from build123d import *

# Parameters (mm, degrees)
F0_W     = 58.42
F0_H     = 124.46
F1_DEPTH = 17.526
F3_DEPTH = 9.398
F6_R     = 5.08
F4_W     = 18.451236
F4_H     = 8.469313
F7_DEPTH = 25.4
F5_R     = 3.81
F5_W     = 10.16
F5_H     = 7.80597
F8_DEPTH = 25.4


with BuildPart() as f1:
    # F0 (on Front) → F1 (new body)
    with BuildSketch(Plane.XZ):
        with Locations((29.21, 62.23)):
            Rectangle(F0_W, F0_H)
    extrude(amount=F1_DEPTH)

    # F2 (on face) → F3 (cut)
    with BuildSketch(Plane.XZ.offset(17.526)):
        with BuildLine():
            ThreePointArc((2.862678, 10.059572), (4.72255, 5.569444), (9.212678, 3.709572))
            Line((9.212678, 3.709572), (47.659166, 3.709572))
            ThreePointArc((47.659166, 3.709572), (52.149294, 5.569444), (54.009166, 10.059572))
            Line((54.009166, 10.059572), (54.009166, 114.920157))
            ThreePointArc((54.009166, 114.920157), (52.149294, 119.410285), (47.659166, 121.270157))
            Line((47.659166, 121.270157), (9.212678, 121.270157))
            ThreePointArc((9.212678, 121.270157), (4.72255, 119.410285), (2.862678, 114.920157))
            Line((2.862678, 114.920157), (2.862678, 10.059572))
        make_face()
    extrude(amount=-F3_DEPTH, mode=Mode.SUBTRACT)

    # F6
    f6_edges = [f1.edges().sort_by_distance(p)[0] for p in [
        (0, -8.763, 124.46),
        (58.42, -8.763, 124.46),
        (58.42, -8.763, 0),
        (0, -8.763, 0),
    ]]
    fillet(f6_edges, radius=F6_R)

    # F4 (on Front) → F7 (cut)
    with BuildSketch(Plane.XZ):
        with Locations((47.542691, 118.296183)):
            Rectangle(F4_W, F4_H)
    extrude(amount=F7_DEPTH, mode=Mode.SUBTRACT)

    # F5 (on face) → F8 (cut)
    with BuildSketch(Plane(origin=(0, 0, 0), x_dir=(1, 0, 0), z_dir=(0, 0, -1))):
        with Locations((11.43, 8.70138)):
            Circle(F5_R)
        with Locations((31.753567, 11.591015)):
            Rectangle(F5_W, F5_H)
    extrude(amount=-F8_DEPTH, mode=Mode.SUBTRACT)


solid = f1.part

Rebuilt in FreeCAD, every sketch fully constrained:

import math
import FreeCAD as App
import Part
import Sketcher

V = App.Vector
Q = App.Units.Quantity


def edges_at(feature, points):
    """Names of the edges that pass closest to the given points."""
    edges = feature.Shape.Edges
    near = lambda p: min(range(len(edges)), key=lambda i: edges[i].distToShape(Part.Vertex(*p))[0])
    return sorted({f"Edge{near(p) + 1}" for p in points})


def add_polygon(sketch, points):
    """Adds a closed chain of lines whose ends are joined by coincident constraints."""
    first, n = sketch.GeometryCount, len(points)
    for a, b in zip(points, points[1:] + points[:1]):
        sketch.addGeometry(Part.LineSegment(App.Vector(*a, 0), App.Vector(*b, 0)), False)
    for i in range(n):
        sketch.addConstraint(Sketcher.Constraint("Coincident", first + i, 2, first + (i + 1) % n, 1))

doc = App.newDocument("Part")
body = doc.addObject("PartDesign::Body", "Body")

sketch1 = doc.addObject("Sketcher::SketchObject", "Sketch")
body.addObject(sketch1)
sketch1.AttachmentSupport = (doc.XZ_Plane, [""])
sketch1.MapMode = "FlatFace"
add_polygon(sketch1, [(0, 124.46), (0, 0), (58.42, 0), (58.42, 124.46)])
sketch1.addConstraint([
    Sketcher.Constraint("Vertical", 0),
    Sketcher.Constraint("Horizontal", 1),
    Sketcher.Constraint("Vertical", 2),
    Sketcher.Constraint("Horizontal", 3),
    Sketcher.Constraint("Coincident", 0, 2, -1, 1),
    Sketcher.Constraint("DistanceX", 1, 1, 1, 2, Q("2.3 in")),
    Sketcher.Constraint("DistanceY", 0, 2, 0, 1, Q("4.9 in")),
])
pad1 = doc.addObject("PartDesign::Pad", "Pad")
body.addObject(pad1)
pad1.Profile = sketch1
pad1.Length = Q("0.69 in")

sketch2 = doc.addObject("Sketcher::SketchObject", "Sketch001")
body.addObject(sketch2)
sketch2.AttachmentSupport = (doc.XZ_Plane, [""])
sketch2.MapMode = "FlatFace"
sketch2.AttachmentOffset = App.Placement(V(0, 0, 0.69 * 25.4), App.Rotation())
sketch2.addGeometry([
    Part.ArcOfCircle(Part.Circle(V(9.212678, 10.059572, 0), V(0, 0, 1), 6.35), math.radians(-179.999998), math.radians(-90.000002)),
    Part.LineSegment(V(9.212678, 3.709572, 0), V(47.659166, 3.709572, 0)),
    Part.ArcOfCircle(Part.Circle(V(47.659166, 10.059572, 0), V(0, 0, 1), 6.35), math.radians(-89.999998), math.radians(-0.000002)),
    Part.LineSegment(V(54.009166, 10.059572, 0), V(54.009166, 114.920157, 0)),
    Part.ArcOfCircle(Part.Circle(V(47.659166, 114.920157, 0), V(0, 0, 1), 6.35), math.radians(0.000002), math.radians(89.999998)),
    Part.LineSegment(V(47.659166, 121.270157, 0), V(9.212678, 121.270157, 0)),
    Part.ArcOfCircle(Part.Circle(V(9.212678, 114.920157, 0), V(0, 0, 1), 6.35), math.radians(90.000002), math.radians(179.999998)),
    Part.LineSegment(V(2.862678, 114.920157, 0), V(2.862678, 10.059572, 0)),
], False)
sketch2.addConstraint([
    Sketcher.Constraint("Tangent", 0, 2, 1, 1),
    Sketcher.Constraint("Tangent", 1, 2, 2, 1),
    Sketcher.Constraint("Tangent", 2, 2, 3, 1),
    Sketcher.Constraint("Tangent", 3, 2, 4, 1),
    Sketcher.Constraint("Tangent", 4, 2, 5, 1),
    Sketcher.Constraint("Tangent", 5, 2, 6, 1),
    Sketcher.Constraint("Tangent", 6, 2, 7, 1),
    Sketcher.Constraint("Tangent", 7, 2, 0, 1),
    Sketcher.Constraint("Horizontal", 1),
    Sketcher.Constraint("Vertical", 3),
    Sketcher.Constraint("Horizontal", 5),
    Sketcher.Constraint("Vertical", 7),
    Sketcher.Constraint("Equal", 0, 2),
    Sketcher.Constraint("Equal", 2, 4),
    Sketcher.Constraint("Equal", 4, 6),
    Sketcher.Constraint("Radius", 0, Q("0.25 in")),
    Sketcher.Constraint("DistanceX", 1, 1, 1, 2, 38.446488),
    Sketcher.Constraint("DistanceY", 3, 1, 3, 2, 104.860585),
    Sketcher.Constraint("DistanceX", -1, 1, 0, 3, 9.212678),
    Sketcher.Constraint("DistanceY", -1, 1, 2, 2, 10.059572),
])
pocket1 = doc.addObject("PartDesign::Pocket", "Pocket")
body.addObject(pocket1)
pocket1.Profile = sketch2
pocket1.Length = Q("0.37 in")
doc.recompute()

fillet = doc.addObject("PartDesign::Fillet", "Fillet")
body.addObject(fillet)
fillet.Base = (pocket1, edges_at(pocket1, [
    (0, -8.763, 124.46),
    (58.42, -8.763, 124.46),
    (58.42, -8.763, 0),
    (0, -8.763, 0),
]))
fillet.Radius = Q("0.2 in")

sketch3 = doc.addObject("Sketcher::SketchObject", "Sketch002")
body.addObject(sketch3)
sketch3.AttachmentSupport = (doc.XZ_Plane, [""])
sketch3.MapMode = "FlatFace"
add_polygon(sketch3, [(38.317073, 122.530839), (38.317073, 114.061526), (56.768309, 114.061526), (56.768309, 122.530839)])
sketch3.addConstraint([
    Sketcher.Constraint("Vertical", 0),
    Sketcher.Constraint("Horizontal", 1),
    Sketcher.Constraint("Vertical", 2),
    Sketcher.Constraint("Horizontal", 3),
    Sketcher.Constraint("DistanceX", 1, 1, 1, 2, 18.451236),
    Sketcher.Constraint("DistanceY", 0, 2, 0, 1, 8.469313),
    Sketcher.Constraint("DistanceX", -1, 1, 1, 2, 56.768309),
    Sketcher.Constraint("DistanceY", -1, 1, 2, 2, 122.530839),
])
pocket2 = doc.addObject("PartDesign::Pocket", "Pocket001")
body.addObject(pocket2)
pocket2.Profile = sketch3
pocket2.Length = Q("1 in")
pocket2.Reversed = True

sketch4 = doc.addObject("Sketcher::SketchObject", "Sketch003")
body.addObject(sketch4)
sketch4.AttachmentSupport = (doc.XY_Plane, [""])
sketch4.MapMode = "FlatFace"
sketch4.addGeometry(Part.Circle(V(11.43, -8.70138, 0), V(0, 0, 1), 3.81), False)
add_polygon(sketch4, [(26.673567, -15.494), (26.673567, -7.68803), (36.833567, -7.68803), (36.833567, -15.494)])
sketch4.addConstraint([
    Sketcher.Constraint("Vertical", 1),
    Sketcher.Constraint("Horizontal", 2),
    Sketcher.Constraint("Vertical", 3),
    Sketcher.Constraint("Horizontal", 4),
    Sketcher.Constraint("Diameter", 0, Q("0.3 in")),
    Sketcher.Constraint("DistanceX", 2, 1, 2, 2, Q("0.4 in")),
    Sketcher.Constraint("DistanceX", -1, 1, 0, 3, Q("0.45 in")),
    Sketcher.Constraint("DistanceY", 3, 2, -1, 1, Q("0.61 in")),
    Sketcher.Constraint("DistanceY", 1, 1, 1, 2, 7.80597),
    Sketcher.Constraint("DistanceY", 0, 3, -1, 1, 8.70138),
    Sketcher.Constraint("DistanceX", -1, 1, 1, 2, 26.673567),
])
pocket3 = doc.addObject("PartDesign::Pocket", "Pocket002")
body.addObject(pocket3)
pocket3.Profile = sketch4
pocket3.Length = Q("1 in")
pocket3.Reversed = True

doc.recompute()
